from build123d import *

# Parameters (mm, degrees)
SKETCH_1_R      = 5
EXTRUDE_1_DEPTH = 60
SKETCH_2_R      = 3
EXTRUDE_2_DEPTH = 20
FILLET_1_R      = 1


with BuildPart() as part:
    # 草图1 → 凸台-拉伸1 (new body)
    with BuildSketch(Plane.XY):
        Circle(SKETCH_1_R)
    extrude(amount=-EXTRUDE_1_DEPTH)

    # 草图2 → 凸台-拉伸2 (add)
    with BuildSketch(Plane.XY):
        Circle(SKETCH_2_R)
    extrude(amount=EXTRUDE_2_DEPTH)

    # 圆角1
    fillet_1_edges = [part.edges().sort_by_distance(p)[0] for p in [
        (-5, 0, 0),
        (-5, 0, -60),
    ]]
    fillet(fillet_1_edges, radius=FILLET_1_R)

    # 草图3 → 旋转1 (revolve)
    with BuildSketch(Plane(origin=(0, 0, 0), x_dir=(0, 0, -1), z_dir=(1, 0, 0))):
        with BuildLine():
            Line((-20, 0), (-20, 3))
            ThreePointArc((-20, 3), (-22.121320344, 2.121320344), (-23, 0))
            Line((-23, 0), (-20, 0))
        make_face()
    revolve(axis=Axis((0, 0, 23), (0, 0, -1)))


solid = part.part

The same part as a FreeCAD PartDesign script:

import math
import FreeCAD as App
import Part
import Sketcher
from FreeCAD import Vector
Q = App.Units.Quantity


def edges_at(feature, points):
    """Names of the edges that pass closest to the given points."""
    edges = feature.Shape.Edges
    near = lambda p: min(range(len(edges)), key=lambda i: edges[i].distToShape(Part.Vertex(*p))[0])
    return sorted({f"Edge{near(p) + 1}" for p in points})

doc = App.newDocument("Part")
params = doc.addObject("Spreadsheet::Sheet", "Params")
for row, (alias, value) in enumerate([
    ("sketch1_diameter", "10 mm"),
    ("pad1_length", "60 mm"),
    ("sketch2_diameter", "6 mm"),
    ("pad2_length", "20 mm"),
    ("fillet_radius", "1 mm"),
    ("sketch3_radius", "3 mm"),
    ("revolution_angle", "360 deg"),
], start=1):
    params.set(f"A{row}", alias)
    params.set(f"B{row}", "=" + value)
    params.setAlias(f"B{row}", alias)

body = doc.addObject("PartDesign::Body", "Body")

# Sketch on XY plane
sketch1 = body.newObject("Sketcher::SketchObject", "Sketch")
sketch1.AttachmentSupport = (doc.getObject("XY_Plane"), [""])
sketch1.MapMode = "FlatFace"
sketch1.addGeometry(Part.Circle(Vector(0, 0, 0), Vector(0, 0, 1), 5), False)
sketch1.addConstraint(Sketcher.Constraint("Coincident", 0, 3, -1, 1))
sketch1.addConstraint(Sketcher.Constraint("Diameter", 0, Q("10 mm")))
sketch1.setExpression("Constraints[1]", "Params.sketch1_diameter")
pad1 = body.newObject("PartDesign::Pad", "Pad")
pad1.Profile = sketch1
pad1.setExpression("Length", "Params.pad1_length")
pad1.Reversed = True

# Sketch on XY plane
sketch2 = body.newObject("Sketcher::SketchObject", "Sketch001")
sketch2.AttachmentSupport = (doc.getObject("XY_Plane"), [""])
sketch2.MapMode = "FlatFace"
sketch2.addGeometry(Part.Circle(Vector(0, 0, 0), Vector(0, 0, 1), 3), False)
sketch2.addConstraint(Sketcher.Constraint("Coincident", 0, 3, -1, 1))
sketch2.addConstraint(Sketcher.Constraint("Diameter", 0, Q("6 mm")))
sketch2.setExpression("Constraints[1]", "Params.sketch2_diameter")
pad2 = body.newObject("PartDesign::Pad", "Pad001")
pad2.Profile = sketch2
pad2.setExpression("Length", "Params.pad2_length")
doc.recompute()

fillet = body.newObject("PartDesign::Fillet", "Fillet")
fillet.Base = (pad2, edges_at(pad2, [(-5, 0, 0), (-5, 0, -60)]))
fillet.setExpression("Radius", "Params.fillet_radius")

# Sketch on YZ plane
sketch3 = body.newObject("Sketcher::SketchObject", "Sketch002")
sketch3.AttachmentSupport = (doc.getObject("YZ_Plane"), [""])
sketch3.MapMode = "FlatFace"
sketch3.addGeometry(Part.LineSegment(Vector(0, 20, 0), Vector(3, 20, 0)), False)
sketch3.addGeometry(Part.ArcOfCircle(Part.Circle(Vector(0, 20, 0), Vector(0, 0, 1), 3), math.radians(0), math.radians(90)), False)
sketch3.addGeometry(Part.LineSegment(Vector(0, 23, 0), Vector(0, 20, 0)), False)
sketch3.addConstraint(Sketcher.Constraint("Coincident", 0, 2, 1, 1))
sketch3.addConstraint(Sketcher.Constraint("Coincident", 1, 2, 2, 1))
sketch3.addConstraint(Sketcher.Constraint("Coincident", 2, 2, 0, 1))
sketch3.addConstraint(Sketcher.Constraint("Horizontal", 0))
sketch3.addConstraint(Sketcher.Constraint("Vertical", 2))
sketch3.addConstraint(Sketcher.Constraint("Coincident", 2, 2, 1, 3))
sketch3.addConstraint(Sketcher.Constraint("PointOnObject", 1, 3, -2))
sketch3.addConstraint(Sketcher.Constraint("Radius", 1, Q("3 mm")))
sketch3.addConstraint(Sketcher.Constraint("DistanceY", -1, 1, 1, 3, Q("20 mm")))
sketch3.setExpression("Constraints[7]", "Params.sketch3_radius")
revolution = body.newObject("PartDesign::Revolution", "Revolution")
revolution.Profile = sketch3
revolution.ReferenceAxis = (sketch3, ["V_Axis"])
revolution.setExpression("Angle", "Params.revolution_angle")

doc.recompute()
